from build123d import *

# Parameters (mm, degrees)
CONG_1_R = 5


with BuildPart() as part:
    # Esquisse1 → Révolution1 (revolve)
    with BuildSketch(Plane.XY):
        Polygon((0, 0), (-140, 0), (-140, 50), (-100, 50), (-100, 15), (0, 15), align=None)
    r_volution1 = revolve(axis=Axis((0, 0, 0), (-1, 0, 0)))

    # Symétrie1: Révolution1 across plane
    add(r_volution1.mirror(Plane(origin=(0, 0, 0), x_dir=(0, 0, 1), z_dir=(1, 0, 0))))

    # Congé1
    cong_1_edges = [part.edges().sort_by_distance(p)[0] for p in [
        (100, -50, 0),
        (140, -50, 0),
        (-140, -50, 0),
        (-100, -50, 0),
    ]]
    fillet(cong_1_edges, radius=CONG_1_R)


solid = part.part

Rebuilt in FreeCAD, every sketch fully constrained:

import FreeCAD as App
import Part
import Sketcher
from FreeCAD import Vector
Q = App.Units.Quantity


def edges_at(feature, points):
    """Names of the edges that pass closest to the given points."""
    edges = feature.Shape.Edges
    near = lambda p: min(range(len(edges)), key=lambda i: edges[i].distToShape(Part.Vertex(*p))[0])
    return sorted({f"Edge{near(p) + 1}" for p in points})


def add_polygon(sketch, points):
    """Adds a closed chain of lines whose ends are joined by coincident constraints."""
    first, n = sketch.GeometryCount, len(points)
    for a, b in zip(points, points[1:] + points[:1]):
        sketch.addGeometry(Part.LineSegment(App.Vector(*a, 0), App.Vector(*b, 0)), False)
    for i in range(n):
        sketch.addConstraint(Sketcher.Constraint("Coincident", first + i, 2, first + (i + 1) % n, 1))

doc = App.newDocument("Part")
body = doc.addObject("PartDesign::Body", "Body")

sketch1 = body.newObject("Sketcher::SketchObject", "Sketch")
sketch1.AttachmentSupport = (doc.getObject("XY_Plane"), [""])
sketch1.MapMode = "FlatFace"
add_polygon(sketch1, [(-140, 0), (0, 0), (0, 15), (-100, 15), (-100, 50), (-140, 50)])
sketch1.addConstraint(Sketcher.Constraint("Horizontal", 0))
sketch1.addConstraint(Sketcher.Constraint("Vertical", 1))
sketch1.addConstraint(Sketcher.Constraint("Horizontal", 2))
sketch1.addConstraint(Sketcher.Constraint("Vertical", 3))
sketch1.addConstraint(Sketcher.Constraint("Horizontal", 4))
sketch1.addConstraint(Sketcher.Constraint("Vertical", 5))
sketch1.addConstraint(Sketcher.Constraint("Coincident", 0, 2, -1, 1))
sketch1.addConstraint(Sketcher.Constraint("DistanceX", 0, 1, 0, 2, Q("140 mm")))
sketch1.addConstraint(Sketcher.Constraint("DistanceX", 2, 2, 2, 1, Q("100 mm")))
sketch1.addConstraint(Sketcher.Constraint("DistanceY", 1, 1, 1, 2, Q("15 mm")))
sketch1.addConstraint(Sketcher.Constraint("DistanceY", 3, 1, 3, 2, Q("35 mm")))
revolution = body.newObject("PartDesign::Revolution", "Revolution")
revolution.Profile = sketch1
revolution.ReferenceAxis = (sketch1, ["H_Axis"])
revolution.Angle = 360
doc.recompute()

mirrored = body.newObject("PartDesign::Mirrored", "Mirrored")
mirrored.Originals = [revolution]
mirrored.MirrorPlane = (doc.getObject("YZ_Plane"), [""])
body.Tip = mirrored
doc.recompute()

fillet = body.newObject("PartDesign::Fillet", "Fillet")
fillet.Base = (mirrored, edges_at(mirrored, [
    (100, -50, 0),
    (140, -50, 0),
    (-140, -50, 0),
    (-100, -50, 0),
]))
fillet.Radius = 5

doc.recompute()
